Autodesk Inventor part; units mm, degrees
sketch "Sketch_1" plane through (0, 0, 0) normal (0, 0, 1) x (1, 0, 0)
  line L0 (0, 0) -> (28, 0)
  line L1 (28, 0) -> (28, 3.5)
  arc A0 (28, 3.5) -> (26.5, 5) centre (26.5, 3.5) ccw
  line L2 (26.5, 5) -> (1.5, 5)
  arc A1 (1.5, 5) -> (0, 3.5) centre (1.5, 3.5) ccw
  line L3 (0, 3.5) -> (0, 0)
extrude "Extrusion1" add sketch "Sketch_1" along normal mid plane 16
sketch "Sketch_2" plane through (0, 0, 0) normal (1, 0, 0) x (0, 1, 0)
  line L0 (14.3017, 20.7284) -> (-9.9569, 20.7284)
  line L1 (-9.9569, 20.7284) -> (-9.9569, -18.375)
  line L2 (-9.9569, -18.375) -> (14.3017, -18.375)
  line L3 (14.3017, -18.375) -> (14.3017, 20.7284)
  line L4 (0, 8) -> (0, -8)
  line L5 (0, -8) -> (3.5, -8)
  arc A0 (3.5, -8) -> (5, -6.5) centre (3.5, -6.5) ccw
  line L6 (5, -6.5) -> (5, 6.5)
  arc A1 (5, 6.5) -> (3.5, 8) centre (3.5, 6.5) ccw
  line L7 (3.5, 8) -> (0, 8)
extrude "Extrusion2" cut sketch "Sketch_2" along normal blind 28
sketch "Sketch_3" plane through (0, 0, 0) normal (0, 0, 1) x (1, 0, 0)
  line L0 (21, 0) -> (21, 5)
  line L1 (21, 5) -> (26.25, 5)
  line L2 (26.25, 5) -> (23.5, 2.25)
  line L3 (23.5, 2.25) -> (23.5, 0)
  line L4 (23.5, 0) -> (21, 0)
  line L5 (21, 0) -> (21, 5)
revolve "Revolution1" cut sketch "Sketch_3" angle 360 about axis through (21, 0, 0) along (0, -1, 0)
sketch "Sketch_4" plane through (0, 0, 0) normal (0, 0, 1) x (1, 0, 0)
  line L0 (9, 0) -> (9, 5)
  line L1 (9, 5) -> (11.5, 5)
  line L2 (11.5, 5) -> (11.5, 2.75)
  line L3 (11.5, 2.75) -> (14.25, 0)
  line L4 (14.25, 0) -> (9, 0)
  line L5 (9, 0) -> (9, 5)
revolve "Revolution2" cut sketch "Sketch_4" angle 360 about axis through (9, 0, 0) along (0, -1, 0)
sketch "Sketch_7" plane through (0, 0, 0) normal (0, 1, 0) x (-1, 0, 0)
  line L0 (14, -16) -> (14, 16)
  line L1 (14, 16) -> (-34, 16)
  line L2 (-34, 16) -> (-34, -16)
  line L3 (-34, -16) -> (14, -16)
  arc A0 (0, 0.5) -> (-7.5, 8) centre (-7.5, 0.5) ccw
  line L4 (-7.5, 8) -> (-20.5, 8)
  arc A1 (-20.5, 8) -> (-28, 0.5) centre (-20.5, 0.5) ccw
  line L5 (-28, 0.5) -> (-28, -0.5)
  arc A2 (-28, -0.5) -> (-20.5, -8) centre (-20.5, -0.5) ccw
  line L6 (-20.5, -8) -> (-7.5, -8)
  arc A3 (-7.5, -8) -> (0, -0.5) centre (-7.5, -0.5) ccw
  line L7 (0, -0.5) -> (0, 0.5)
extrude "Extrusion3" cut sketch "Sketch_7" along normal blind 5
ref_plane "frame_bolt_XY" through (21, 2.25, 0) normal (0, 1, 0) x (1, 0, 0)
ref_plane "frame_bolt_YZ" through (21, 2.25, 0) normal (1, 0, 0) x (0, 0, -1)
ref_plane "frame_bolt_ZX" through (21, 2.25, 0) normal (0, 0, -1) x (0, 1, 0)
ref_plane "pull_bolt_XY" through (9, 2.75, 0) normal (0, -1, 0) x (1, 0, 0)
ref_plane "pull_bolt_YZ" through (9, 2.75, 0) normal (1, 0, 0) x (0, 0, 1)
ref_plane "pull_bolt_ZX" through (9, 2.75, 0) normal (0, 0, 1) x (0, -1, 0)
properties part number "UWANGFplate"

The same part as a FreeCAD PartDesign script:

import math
import FreeCAD as App
import Part
import Sketcher
from FreeCAD import Vector
Q = App.Units.Quantity


def add_polygon(sketch, points):
    """Adds a closed chain of lines whose ends are joined by coincident constraints."""
    first, n = sketch.GeometryCount, len(points)
    for a, b in zip(points, points[1:] + points[:1]):
        sketch.addGeometry(Part.LineSegment(App.Vector(*a, 0), App.Vector(*b, 0)), False)
    for i in range(n):
        sketch.addConstraint(Sketcher.Constraint("Coincident", first + i, 2, first + (i + 1) % n, 1))

doc = App.newDocument("Part")
body = doc.addObject("PartDesign::Body", "Body")

# Sketch on XY plane
sketch1 = body.newObject("Sketcher::SketchObject", "Sketch")
sketch1.AttachmentSupport = (doc.getObject("XY_Plane"), [""])
sketch1.MapMode = "FlatFace"
sketch1.addGeometry([
    Part.LineSegment(Vector(0, 3.5, 0), Vector(0, 0, 0)),  # 0
    Part.LineSegment(Vector(0, 0, 0), Vector(28, 0, 0)),  # 1
    Part.LineSegment(Vector(28, 0, 0), Vector(28, 3.5, 0)),  # 2
    Part.ArcOfCircle(Part.Circle(Vector(26.5, 3.5, 0), Vector(0, 0, 1), 1.5), math.radians(0), math.radians(90)),  # 3
    Part.LineSegment(Vector(26.5, 5, 0), Vector(1.5, 5, 0)),  # 4
    Part.ArcOfCircle(Part.Circle(Vector(1.5, 3.5, 0), Vector(0, 0, 1), 1.5), math.radians(90), math.radians(180)),  # 5
], False)
sketch1.addConstraint([
    Sketcher.Constraint("Coincident", 0, 2, 1, 1),
    Sketcher.Constraint("Coincident", 1, 2, 2, 1),
    Sketcher.Constraint("Tangent", 2, 2, 3, 1),
    Sketcher.Constraint("Tangent", 3, 2, 4, 1),
    Sketcher.Constraint("Tangent", 4, 2, 5, 1),
    Sketcher.Constraint("Tangent", 5, 2, 0, 1),
    Sketcher.Constraint("Vertical", 0),
    Sketcher.Constraint("Horizontal", 1),
    Sketcher.Constraint("Vertical", 2),
    Sketcher.Constraint("Horizontal", 4),
    Sketcher.Constraint("Coincident", 0, 2, -1, 1),
    Sketcher.Constraint("Equal", 3, 5),
    Sketcher.Constraint("Radius", 3, 1.5),
    Sketcher.Constraint("DistanceX", 1, 1, 1, 2, 28.0),
    Sketcher.Constraint("DistanceY", 0, 2, 0, 1, 3.5),
])
pad1 = body.newObject("PartDesign::Pad", "Pad")
pad1.Profile = sketch1
pad1.Length = 16
pad1.Midplane = True

# Sketch on YZ plane
sketch2 = body.newObject("Sketcher::SketchObject", "Sketch001")
sketch2.AttachmentSupport = (doc.getObject("YZ_Plane"), [""])
sketch2.MapMode = "FlatFace"
add_polygon(sketch2, [(14.3, -18.4), (14.3, 20.7), (-10, 20.7), (-10, -18.4)])  # lines 0-3
sketch2.addGeometry(Part.LineSegment(Vector(0, -8, 0), Vector(0, 8, 0)), False)  # 4
sketch2.addGeometry(Part.LineSegment(Vector(0, 8, 0), Vector(3.5, 8, 0)), False)  # 5
sketch2.addGeometry(Part.ArcOfCircle(Part.Circle(Vector(3.5, 6.5, 0), Vector(0, 0, 1), 1.5), math.radians(0), math.radians(90)), False)  # 6
sketch2.addGeometry(Part.LineSegment(Vector(5, 6.5, 0), Vector(5, -6.5, 0)), False)  # 7
sketch2.addGeometry(Part.ArcOfCircle(Part.Circle(Vector(3.5, -6.5, 0), Vector(0, 0, 1), 1.5), math.radians(-90), math.radians(0)), False)  # 8
sketch2.addGeometry(Part.LineSegment(Vector(3.5, -8, 0), Vector(0, -8, 0)), False)  # 9
sketch2.addConstraint([
    Sketcher.Constraint("Coincident", 4, 2, 5, 1),
    Sketcher.Constraint("Tangent", 5, 2, 6, 2),
    Sketcher.Constraint("Tangent", 6, 1, 7, 1),
    Sketcher.Constraint("Tangent", 7, 2, 8, 2),
    Sketcher.Constraint("Tangent", 8, 1, 9, 1),
    Sketcher.Constraint("Coincident", 9, 2, 4, 1),
    Sketcher.Constraint("Vertical", 0),
    Sketcher.Constraint("Horizontal", 1),
    Sketcher.Constraint("Vertical", 2),
    Sketcher.Constraint("Horizontal", 3),
    Sketcher.Constraint("Vertical", 4),
    Sketcher.Constraint("Horizontal", 5),
    Sketcher.Constraint("Vertical", 7),
    Sketcher.Constraint("Horizontal", 9),
    Sketcher.Constraint("Equal", 6, 8),
    Sketcher.Constraint("Symmetric", 4, 2, 9, 2, -1, 1),
    Sketcher.Constraint("Radius", 6, 1.5),
    Sketcher.Constraint("DistanceY", 4, 1, 4, 2, 16.0),
    Sketcher.Constraint("DistanceX", 5, 1, 5, 2, 3.5),
    Sketcher.Constraint("DistanceX", 1, 2, 1, 1, 24.2586),
    Sketcher.Constraint("DistanceY", 0, 1, 0, 2, 39.1034),
    Sketcher.Constraint("DistanceX", 1, 2, -1, 1, 9.957),
    Sketcher.Constraint("DistanceY", 2, 2, -1, 1, 18.375),
])
pocket1 = body.newObject("PartDesign::Pocket", "Pocket")
pocket1.Profile = sketch2
pocket1.Length = 28
pocket1.Reversed = True

# Sketch on XY plane
sketch3 = body.newObject("Sketcher::SketchObject", "Sketch002")
sketch3.AttachmentSupport = (doc.getObject("XY_Plane"), [""])
sketch3.MapMode = "FlatFace"
add_polygon(sketch3, [(21, 5), (21, 0), (23.5, 0), (23.5, 2.2), (26.2, 5)])  # lines 0-4
sketch3.addGeometry(Part.LineSegment(Vector(21, 5, 0), Vector(21, 0, 0)), True)  # axis
sketch3.addConstraint([
    Sketcher.Constraint("Vertical", 0),
    Sketcher.Constraint("Horizontal", 1),
    Sketcher.Constraint("Vertical", 2),
    Sketcher.Constraint("Horizontal", 4),
    Sketcher.Constraint("Vertical", 5),
    Sketcher.Constraint("Coincident", 5, 1, 4, 2),
    Sketcher.Constraint("PointOnObject", 0, 2, -1),
    Sketcher.Constraint("PointOnObject", 5, 2, -1),
    Sketcher.Constraint("DistanceY", 0, 2, 0, 1, 5.0),
    Sketcher.Constraint("Angle", 3, Q("45 deg")),
    Sketcher.Constraint("DistanceX", 1, 1, 1, 2, 2.5),
    Sketcher.Constraint("DistanceX", -1, 1, 0, 2, 21.0),
    Sketcher.Constraint("DistanceX", 4, 2, 4, 1, 5.25),
])
groove = body.newObject("PartDesign::Groove", "Groove")
groove.Profile = sketch3
groove.ReferenceAxis = (sketch3, ["Axis0"])
groove.Angle = 360

# Sketch on XY plane
sketch4 = body.newObject("Sketcher::SketchObject", "Sketch003")
sketch4.AttachmentSupport = (doc.getObject("XY_Plane"), [""])
sketch4.MapMode = "FlatFace"
add_polygon(sketch4, [(9, 5), (9, 0), (14.2, 0), (11.5, 2.8), (11.5, 5)])  # lines 0-4
sketch4.addGeometry(Part.LineSegment(Vector(9, 5, 0), Vector(9, 0, 0)), True)  # axis
sketch4.addConstraint([
    Sketcher.Constraint("Vertical", 0),
    Sketcher.Constraint("Horizontal", 1),
    Sketcher.Constraint("Vertical", 3),
    Sketcher.Constraint("Horizontal", 4),
    Sketcher.Constraint("Vertical", 5),
    Sketcher.Constraint("Coincident", 5, 1, 4, 2),
    Sketcher.Constraint("PointOnObject", 0, 2, -1),
    Sketcher.Constraint("PointOnObject", 5, 2, -1),
    Sketcher.Constraint("DistanceY", 0, 2, 0, 1, 5.0),
    Sketcher.Constraint("Angle", 2, Q("135 deg")),
    Sketcher.Constraint("DistanceX", 4, 2, 4, 1, 2.5),
    Sketcher.Constraint("DistanceX", -1, 1, 0, 2, 9.0),
    Sketcher.Constraint("DistanceX", 1, 1, 1, 2, 5.25),
])
groove2 = body.newObject("PartDesign::Groove", "Groove001")
groove2.Profile = sketch4
groove2.ReferenceAxis = (sketch4, ["Axis0"])
groove2.Angle = 360

# Sketch on XZ plane
sketch5 = body.newObject("Sketcher::SketchObject", "Sketch004")
sketch5.AttachmentSupport = (doc.getObject("XZ_Plane"), [""])
sketch5.MapMode = "FlatFace"
add_polygon(sketch5, [(34, -16), (-14, -16), (-14, 16), (34, 16)])  # lines 0-3
sketch5.addGeometry(Part.ArcOfCircle(Part.Circle(Vector(7.5, 0.5, 0), Vector(0, 0, 1), 7.5), math.radians(90), math.radians(180)), False)  # 4
sketch5.addGeometry(Part.LineSegment(Vector(0, 0.5, 0), Vector(0, -0.5, 0)), False)  # 5
sketch5.addGeometry(Part.ArcOfCircle(Part.Circle(Vector(7.5, -0.5, 0), Vector(0, 0, 1), 7.5), math.radians(180), math.radians(270)), False)  # 6
sketch5.addGeometry(Part.LineSegment(Vector(7.5, -8, 0), Vector(20.5, -8, 0)), False)  # 7
sketch5.addGeometry(Part.ArcOfCircle(Part.Circle(Vector(20.5, -0.5, 0), Vector(0, 0, 1), 7.5), math.radians(-90), math.radians(0)), False)  # 8
sketch5.addGeometry(Part.LineSegment(Vector(28, -0.5, 0), Vector(28, 0.5, 0)), False)  # 9
sketch5.addGeometry(Part.ArcOfCircle(Part.Circle(Vector(20.5, 0.5, 0), Vector(0, 0, 1), 7.5), math.radians(0), math.radians(90)), False)  # 10
sketch5.addGeometry(Part.LineSegment(Vector(20.5, 8, 0), Vector(7.5, 8, 0)), False)  # 11
sketch5.addConstraint([
    Sketcher.Constraint("Tangent", 4, 2, 5, 1),
    Sketcher.Constraint("Tangent", 5, 2, 6, 1),
    Sketcher.Constraint("Tangent", 6, 2, 7, 1),
    Sketcher.Constraint("Tangent", 7, 2, 8, 1),
    Sketcher.Constraint("Tangent", 8, 2, 9, 1),
    Sketcher.Constraint("Tangent", 9, 2, 10, 1),
    Sketcher.Constraint("Tangent", 10, 2, 11, 1),
    Sketcher.Constraint("Tangent", 11, 2, 4, 1),
    Sketcher.Constraint("Horizontal", 0),
    Sketcher.Constraint("Vertical", 1),
    Sketcher.Constraint("Horizontal", 2),
    Sketcher.Constraint("Vertical", 3),
    Sketcher.Constraint("Vertical", 5),
    Sketcher.Constraint("Horizontal", 7),
    Sketcher.Constraint("Vertical", 9),
    Sketcher.Constraint("Horizontal", 11),
    Sketcher.Constraint("Equal", 4, 6),
    Sketcher.Constraint("Equal", 6, 8),
    Sketcher.Constraint("Equal", 8, 10),
    Sketcher.Constraint("Symmetric", 4, 2, 5, 2, -1, 1),
    Sketcher.Constraint("Radius", 4, 7.5),
    Sketcher.Constraint("DistanceX", 0, 2, 0, 1, 48.0),
    Sketcher.Constraint("DistanceX", 7, 1, 7, 2, 13.0),
    Sketcher.Constraint("DistanceY", 1, 1, 1, 2, 32.0),
    Sketcher.Constraint("DistanceY", 5, 2, 5, 1, 1.0),
    Sketcher.Constraint("DistanceX", 0, 2, -1, 1, 14.0),
    Sketcher.Constraint("DistanceY", 0, 2, -1, 1, 16.0),
])
pocket2 = body.newObject("PartDesign::Pocket", "Pocket001")
pocket2.Profile = sketch5
pocket2.Length = 5

doc.recompute()
